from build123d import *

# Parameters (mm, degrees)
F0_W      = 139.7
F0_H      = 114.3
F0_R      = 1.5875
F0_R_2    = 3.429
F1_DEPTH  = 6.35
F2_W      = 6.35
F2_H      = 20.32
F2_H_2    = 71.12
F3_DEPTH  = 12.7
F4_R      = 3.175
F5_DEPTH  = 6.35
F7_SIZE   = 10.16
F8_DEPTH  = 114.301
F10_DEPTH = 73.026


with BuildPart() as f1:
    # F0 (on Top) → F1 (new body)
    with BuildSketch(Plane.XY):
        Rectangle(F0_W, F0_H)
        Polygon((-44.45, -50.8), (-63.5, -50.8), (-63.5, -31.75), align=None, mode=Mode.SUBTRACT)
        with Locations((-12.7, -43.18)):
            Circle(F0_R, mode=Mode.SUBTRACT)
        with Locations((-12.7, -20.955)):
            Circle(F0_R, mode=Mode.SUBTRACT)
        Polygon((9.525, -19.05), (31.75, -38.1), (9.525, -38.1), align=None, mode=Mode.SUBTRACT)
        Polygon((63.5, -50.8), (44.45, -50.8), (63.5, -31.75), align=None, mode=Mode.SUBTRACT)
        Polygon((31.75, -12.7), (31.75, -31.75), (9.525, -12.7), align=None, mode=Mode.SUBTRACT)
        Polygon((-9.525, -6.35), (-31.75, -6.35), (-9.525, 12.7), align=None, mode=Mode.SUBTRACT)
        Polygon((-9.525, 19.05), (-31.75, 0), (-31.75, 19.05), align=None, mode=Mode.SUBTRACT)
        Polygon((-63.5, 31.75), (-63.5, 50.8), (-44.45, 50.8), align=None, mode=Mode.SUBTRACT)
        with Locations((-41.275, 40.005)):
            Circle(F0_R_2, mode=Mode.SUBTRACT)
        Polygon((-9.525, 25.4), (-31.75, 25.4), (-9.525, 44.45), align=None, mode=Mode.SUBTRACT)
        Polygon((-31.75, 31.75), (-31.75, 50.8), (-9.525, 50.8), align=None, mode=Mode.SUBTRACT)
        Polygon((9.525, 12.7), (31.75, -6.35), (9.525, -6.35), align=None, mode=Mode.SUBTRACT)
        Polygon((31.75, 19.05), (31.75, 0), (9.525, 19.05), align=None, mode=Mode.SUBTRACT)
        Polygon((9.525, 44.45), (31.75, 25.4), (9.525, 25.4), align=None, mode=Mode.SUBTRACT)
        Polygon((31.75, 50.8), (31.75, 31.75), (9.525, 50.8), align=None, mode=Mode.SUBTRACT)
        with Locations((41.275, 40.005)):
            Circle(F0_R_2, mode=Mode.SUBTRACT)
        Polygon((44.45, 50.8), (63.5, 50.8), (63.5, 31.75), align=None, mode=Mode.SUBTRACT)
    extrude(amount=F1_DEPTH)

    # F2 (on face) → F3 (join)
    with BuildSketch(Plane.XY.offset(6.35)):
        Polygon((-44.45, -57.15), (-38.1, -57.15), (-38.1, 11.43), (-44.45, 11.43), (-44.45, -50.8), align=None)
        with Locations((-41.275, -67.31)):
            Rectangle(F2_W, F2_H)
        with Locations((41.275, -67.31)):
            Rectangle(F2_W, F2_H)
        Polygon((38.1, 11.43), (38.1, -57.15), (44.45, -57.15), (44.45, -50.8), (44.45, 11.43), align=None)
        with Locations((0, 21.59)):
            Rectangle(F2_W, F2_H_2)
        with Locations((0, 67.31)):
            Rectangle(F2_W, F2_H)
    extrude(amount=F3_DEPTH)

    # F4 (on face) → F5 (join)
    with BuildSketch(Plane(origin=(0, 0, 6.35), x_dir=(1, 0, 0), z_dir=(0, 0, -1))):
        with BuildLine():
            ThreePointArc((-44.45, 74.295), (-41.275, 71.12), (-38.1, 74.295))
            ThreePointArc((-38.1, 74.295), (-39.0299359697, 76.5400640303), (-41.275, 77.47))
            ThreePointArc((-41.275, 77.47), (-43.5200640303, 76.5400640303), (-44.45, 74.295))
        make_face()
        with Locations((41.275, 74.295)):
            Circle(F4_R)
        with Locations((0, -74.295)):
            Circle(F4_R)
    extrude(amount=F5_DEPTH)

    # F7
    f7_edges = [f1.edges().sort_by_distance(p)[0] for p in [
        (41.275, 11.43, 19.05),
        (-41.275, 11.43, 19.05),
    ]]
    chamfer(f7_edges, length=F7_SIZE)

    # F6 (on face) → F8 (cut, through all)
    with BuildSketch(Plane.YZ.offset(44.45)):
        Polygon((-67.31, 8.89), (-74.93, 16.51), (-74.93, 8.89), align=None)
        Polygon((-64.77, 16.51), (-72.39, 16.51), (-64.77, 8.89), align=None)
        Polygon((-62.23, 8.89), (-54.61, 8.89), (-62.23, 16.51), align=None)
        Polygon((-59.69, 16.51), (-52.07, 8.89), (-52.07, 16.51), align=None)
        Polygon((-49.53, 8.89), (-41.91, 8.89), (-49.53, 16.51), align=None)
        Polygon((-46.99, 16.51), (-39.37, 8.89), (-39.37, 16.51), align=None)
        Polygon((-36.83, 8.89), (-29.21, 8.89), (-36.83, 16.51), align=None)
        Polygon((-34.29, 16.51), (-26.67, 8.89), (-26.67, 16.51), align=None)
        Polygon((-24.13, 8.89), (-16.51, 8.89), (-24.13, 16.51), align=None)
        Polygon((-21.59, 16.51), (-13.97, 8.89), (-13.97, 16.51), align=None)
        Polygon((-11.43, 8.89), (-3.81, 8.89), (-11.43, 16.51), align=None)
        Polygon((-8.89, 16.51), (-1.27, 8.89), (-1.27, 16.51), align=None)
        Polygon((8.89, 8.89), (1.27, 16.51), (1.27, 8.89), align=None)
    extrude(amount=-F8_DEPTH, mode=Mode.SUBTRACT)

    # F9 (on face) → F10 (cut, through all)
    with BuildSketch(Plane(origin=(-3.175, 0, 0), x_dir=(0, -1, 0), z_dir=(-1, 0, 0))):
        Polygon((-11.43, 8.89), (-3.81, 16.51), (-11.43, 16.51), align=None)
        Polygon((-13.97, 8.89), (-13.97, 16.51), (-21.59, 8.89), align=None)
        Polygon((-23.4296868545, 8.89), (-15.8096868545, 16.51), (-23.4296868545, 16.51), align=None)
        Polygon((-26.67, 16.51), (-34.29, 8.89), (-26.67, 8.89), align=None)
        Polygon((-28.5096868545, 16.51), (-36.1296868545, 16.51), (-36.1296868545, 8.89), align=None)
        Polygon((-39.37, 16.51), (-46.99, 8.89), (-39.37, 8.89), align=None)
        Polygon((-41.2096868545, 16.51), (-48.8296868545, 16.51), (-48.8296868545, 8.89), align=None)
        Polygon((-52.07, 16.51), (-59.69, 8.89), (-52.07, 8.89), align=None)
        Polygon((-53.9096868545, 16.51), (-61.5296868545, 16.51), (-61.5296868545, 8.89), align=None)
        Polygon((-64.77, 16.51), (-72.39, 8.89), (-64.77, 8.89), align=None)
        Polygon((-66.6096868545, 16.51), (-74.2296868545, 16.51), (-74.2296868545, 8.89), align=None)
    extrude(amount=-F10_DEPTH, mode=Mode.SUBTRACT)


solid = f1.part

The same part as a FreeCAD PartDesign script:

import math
import FreeCAD as App
import Part
import Sketcher
Q = App.Units.Quantity


def edges_at(feature, points):
    """Names of the edges that pass closest to the given points."""
    edges = feature.Shape.Edges
    near = lambda p: min(range(len(edges)), key=lambda i: edges[i].distToShape(Part.Vertex(*p))[0])
    return sorted({f"Edge{near(p) + 1}" for p in points})


def add_polygon(sketch, points):
    """Adds a closed chain of lines whose ends are joined by coincident constraints."""
    first, n = sketch.GeometryCount, len(points)
    for a, b in zip(points, points[1:] + points[:1]):
        sketch.addGeometry(Part.LineSegment(App.Vector(*a, 0), App.Vector(*b, 0)), False)
    for i in range(n):
        sketch.addConstraint(Sketcher.Constraint("Coincident", first + i, 2, first + (i + 1) % n, 1))

doc = App.newDocument("Part")
body = doc.addObject("PartDesign::Body", "Body")

# Sketch on XY plane
sketch1 = body.newObject("Sketcher::SketchObject", "Sketch")
sketch1.AttachmentSupport = (doc.getObject("XY_Plane"), [""])
sketch1.MapMode = "FlatFace"
add_polygon(sketch1, [(-69.8, 57.1), (-69.8, -57.1), (69.8, -57.1), (69.8, 57.1)])  # lines 0-3
add_polygon(sketch1, [(-63.5, -31.8), (-44.5, -50.8), (-63.5, -50.8)])  # lines 4-6
sketch1.addGeometry(Part.Circle(App.Vector(-12.7, -43.2, 0), App.Vector(0, 0, 1), 1.6), False)  # 7
sketch1.addGeometry(Part.Circle(App.Vector(-12.7, -21, 0), App.Vector(0, 0, 1), 1.6), False)  # 8
add_polygon(sketch1, [(9.5, -38.1), (9.5, -19.1), (31.8, -38.1)])  # lines 9-11
add_polygon(sketch1, [(63.5, -31.8), (63.5, -50.8), (44.5, -50.8)])  # lines 12-14
add_polygon(sketch1, [(9.5, -12.7), (31.8, -12.7), (31.8, -31.8)])  # lines 15-17
add_polygon(sketch1, [(-9.5, 12.7), (-9.5, -6.3), (-31.8, -6.3)])  # lines 18-20
add_polygon(sketch1, [(-31.8, 19.1), (-9.5, 19.1), (-31.8, 0)])  # lines 21-23
add_polygon(sketch1, [(-44.5, 50.8), (-63.5, 31.8), (-63.5, 50.8)])  # lines 24-26
sketch1.addGeometry(Part.Circle(App.Vector(-41.3, 40, 0), App.Vector(0, 0, 1), 3.4), False)  # 27
add_polygon(sketch1, [(-9.5, 44.5), (-9.5, 25.4), (-31.8, 25.4)])  # lines 28-30
add_polygon(sketch1, [(-9.5, 50.8), (-31.8, 31.8), (-31.8, 50.8)])  # lines 31-33
add_polygon(sketch1, [(9.5, -6.3), (9.5, 12.7), (31.8, -6.3)])  # lines 34-36
add_polygon(sketch1, [(9.5, 19.1), (31.8, 19.1), (31.8, 0)])  # lines 37-39
add_polygon(sketch1, [(9.5, 25.4), (9.5, 44.5), (31.8, 25.4)])  # lines 40-42
add_polygon(sketch1, [(9.5, 50.8), (31.8, 50.8), (31.8, 31.8)])  # lines 43-45
sketch1.addGeometry(Part.Circle(App.Vector(41.3, 40, 0), App.Vector(0, 0, 1), 3.4), False)  # 46
add_polygon(sketch1, [(63.5, 31.8), (44.5, 50.8), (63.5, 50.8)])  # lines 47-49
sketch1.addConstraint(Sketcher.Constraint("Vertical", 0))
sketch1.addConstraint(Sketcher.Constraint("Horizontal", 1))
sketch1.addConstraint(Sketcher.Constraint("Vertical", 2))
sketch1.addConstraint(Sketcher.Constraint("Horizontal", 3))
sketch1.addConstraint(Sketcher.Constraint("Horizontal", 5))
sketch1.addConstraint(Sketcher.Constraint("Vertical", 6))
sketch1.addConstraint(Sketcher.Constraint("Vertical", 9))
sketch1.addConstraint(Sketcher.Constraint("Horizontal", 11))
sketch1.addConstraint(Sketcher.Constraint("Vertical", 12))
sketch1.addConstraint(Sketcher.Constraint("Horizontal", 13))
sketch1.addConstraint(Sketcher.Constraint("Horizontal", 15))
sketch1.addConstraint(Sketcher.Constraint("Vertical", 16))
sketch1.addConstraint(Sketcher.Constraint("Vertical", 18))
sketch1.addConstraint(Sketcher.Constraint("Horizontal", 19))
sketch1.addConstraint(Sketcher.Constraint("Horizontal", 21))
sketch1.addConstraint(Sketcher.Constraint("Vertical", 23))
sketch1.addConstraint(Sketcher.Constraint("Vertical", 25))
sketch1.addConstraint(Sketcher.Constraint("Horizontal", 26))
sketch1.addConstraint(Sketcher.Constraint("Vertical", 28))
sketch1.addConstraint(Sketcher.Constraint("Horizontal", 29))
sketch1.addConstraint(Sketcher.Constraint("Vertical", 32))
sketch1.addConstraint(Sketcher.Constraint("Horizontal", 33))
sketch1.addConstraint(Sketcher.Constraint("Vertical", 34))
sketch1.addConstraint(Sketcher.Constraint("Horizontal", 36))
sketch1.addConstraint(Sketcher.Constraint("Horizontal", 37))
sketch1.addConstraint(Sketcher.Constraint("Vertical", 38))
sketch1.addConstraint(Sketcher.Constraint("Vertical", 40))
sketch1.addConstraint(Sketcher.Constraint("Horizontal", 42))
sketch1.addConstraint(Sketcher.Constraint("Horizontal", 43))
sketch1.addConstraint(Sketcher.Constraint("Vertical", 44))
sketch1.addConstraint(Sketcher.Constraint("Horizontal", 48))
sketch1.addConstraint(Sketcher.Constraint("Vertical", 49))
sketch1.addConstraint(Sketcher.Constraint("Equal", 7, 8))
sketch1.addConstraint(Sketcher.Constraint("Equal", 27, 46))
sketch1.addConstraint(Sketcher.Constraint("Symmetric", 0, 2, 2, 2, -1, 1))
sketch1.addConstraint(Sketcher.Constraint("Symmetric", 17, 2, 20, 2, -1, 1))
sketch1.addConstraint(Sketcher.Constraint("Symmetric", 9, 2, 21, 2, -1, 1))
sketch1.addConstraint(Sketcher.Constraint("Symmetric", 14, 2, 24, 2, -1, 1))
sketch1.addConstraint(Sketcher.Constraint("Symmetric", 13, 2, 26, 2, -1, 1))
sketch1.addConstraint(Sketcher.Constraint("Symmetric", 16, 2, 31, 2, -1, 1))
sketch1.addConstraint(Sketcher.Constraint("Symmetric", 22, 2, 38, 2, -1, 1))
sketch1.addConstraint(Sketcher.Constraint("Symmetric", 4, 2, 47, 2, -1, 1))
sketch1.addConstraint(Sketcher.Constraint("Symmetric", 6, 2, 49, 2, -1, 1))
sketch1.addConstraint(Sketcher.Constraint("Symmetric", 27, 3, 46, 3, -2))
sketch1.addConstraint(Sketcher.Constraint("Symmetric", 5, 2, 12, 2, -2))
sketch1.addConstraint(Sketcher.Constraint("Symmetric", 20, 2, 34, 2, -2))
sketch1.addConstraint(Sketcher.Constraint("Symmetric", 19, 2, 35, 2, -2))
sketch1.addConstraint(Sketcher.Constraint("Symmetric", 21, 2, 39, 2, -2))
sketch1.addConstraint(Sketcher.Constraint("Symmetric", 30, 2, 40, 2, -2))
sketch1.addConstraint(Sketcher.Constraint("Symmetric", 29, 2, 41, 2, -2))
sketch1.addConstraint(Sketcher.Constraint("Symmetric", 32, 2, 43, 2, -2))
sketch1.addConstraint(Sketcher.Constraint("PointOnObject", 22, 2, -1))
sketch1.addConstraint(Sketcher.Constraint("Perpendicular", 4, 14))
sketch1.addConstraint(Sketcher.Constraint("Parallel", 10, 17))
sketch1.addConstraint(Sketcher.Constraint("Parallel", 20, 22))
sketch1.addConstraint(Sketcher.Constraint("Parallel", 22, 30))
sketch1.addConstraint(Sketcher.Constraint("Parallel", 30, 31))
sketch1.addConstraint(Sketcher.Constraint("Parallel", 17, 35))
sketch1.addConstraint(Sketcher.Constraint("Parallel", 41, 45))
sketch1.addConstraint(Sketcher.Constraint("Horizontal", 6, 2, 14, 2))
sketch1.addConstraint(Sketcher.Constraint("Horizontal", 14, 2, 16, 2))
sketch1.addConstraint(Sketcher.Constraint("Horizontal", 26, 2, 32, 2))
sketch1.addConstraint(Sketcher.Constraint("Horizontal", 31, 2, 44, 2))
sketch1.addConstraint(Sketcher.Constraint("Vertical", 7, 3, 8, 3))
sketch1.addConstraint(Sketcher.Constraint("Vertical", 10, 2, 15, 2))
sketch1.addConstraint(Sketcher.Constraint("Vertical", 11, 2, 17, 2))
sketch1.addConstraint(Sketcher.Constraint("Vertical", 19, 2, 22, 2))
sketch1.addConstraint(Sketcher.Constraint("Vertical", 4, 2, 26, 2))
sketch1.addConstraint(Sketcher.Constraint("Vertical", 21, 2, 28, 2))
sketch1.addConstraint(Sketcher.Constraint("Vertical", 23, 2, 29, 2))
sketch1.addConstraint(Sketcher.Constraint("Vertical", 29, 2, 31, 2))
sketch1.addConstraint(Sketcher.Constraint("Vertical", 30, 2, 33, 2))
sketch1.addConstraint(Sketcher.Constraint("Diameter", 27, Q("0.27 in")))
sketch1.addConstraint(Sketcher.Constraint("Diameter", 7, Q("0.125 in")))
sketch1.addConstraint(Sketcher.Constraint("DistanceX", 1, 1, 1, 2, Q("5.5 in")))
sketch1.addConstraint(Sketcher.Constraint("DistanceY", 0, 2, 0, 1, Q("4.5 in")))
sketch1.addConstraint(Sketcher.Constraint("DistanceY", 4, 2, -1, 1, Q("2 in")))
sketch1.addConstraint(Sketcher.Constraint("DistanceY", -1, 1, 28, 2, Q("1 in")))
sketch1.addConstraint(Sketcher.Constraint("DistanceX", 0, 2, 4, 2, Q("1 in")))
sketch1.addConstraint(Sketcher.Constraint("DistanceX", 5, 2, 7, 3, Q("2 in")))
sketch1.addConstraint(Sketcher.Constraint("DistanceY", 0, 2, 6, 2, Q("1 in")))
sketch1.addConstraint(Sketcher.Constraint("DistanceX", 4, 2, 10, 2, Q("3 in")))
sketch1.addConstraint(Sketcher.Constraint("DistanceY", 7, 3, -1, 1, Q("1.7 in")))
sketch1.addConstraint(Sketcher.Constraint("DistanceY", 8, 3, 27, 3, Q("2.4 in")))
sketch1.addConstraint(Sketcher.Constraint("DistanceX", 11, 2, 11, 1, Q("0.875 in")))
sketch1.addConstraint(Sketcher.Constraint("DistanceX", 27, 3, 46, 3, Q("3.25 in")))
sketch1.addConstraint(Sketcher.Constraint("DistanceY", 8, 3, -1, 1, Q("0.825 in")))
pad1 = body.newObject("PartDesign::Pad", "Pad")
pad1.Profile = sketch1
pad1.Length = Q("0.25 in")

# Sketch on XY plane
sketch2 = body.newObject("Sketcher::SketchObject", "Sketch001")
sketch2.AttachmentSupport = (doc.getObject("XY_Plane"), [""])
sketch2.MapMode = "FlatFace"
sketch2.AttachmentOffset = App.Placement(App.Vector(0, 0, 0.25 * 25.4), App.Rotation())
add_polygon(sketch2, [(-38, 11), (-44, 11), (-44, -77), (-38, -77)])  # lines 0-3
add_polygon(sketch2, [(38, -77), (44, -77), (44, 11), (38, 11)])  # lines 4-7
add_polygon(sketch2, [(-3, -14), (3, -14), (3, 77), (-3, 77)])  # lines 8-11
sketch2.addConstraint(Sketcher.Constraint("Horizontal", 0))
sketch2.addConstraint(Sketcher.Constraint("Vertical", 1))
sketch2.addConstraint(Sketcher.Constraint("Horizontal", 2))
sketch2.addConstraint(Sketcher.Constraint("Vertical", 3))
sketch2.addConstraint(Sketcher.Constraint("Horizontal", 4))
sketch2.addConstraint(Sketcher.Constraint("Vertical", 5))
sketch2.addConstraint(Sketcher.Constraint("Horizontal", 6))
sketch2.addConstraint(Sketcher.Constraint("Vertical", 7))
sketch2.addConstraint(Sketcher.Constraint("Horizontal", 8))
sketch2.addConstraint(Sketcher.Constraint("Vertical", 9))
sketch2.addConstraint(Sketcher.Constraint("Horizontal", 10))
sketch2.addConstraint(Sketcher.Constraint("Vertical", 11))
sketch2.addConstraint(Sketcher.Constraint("Symmetric", 1, 2, 4, 2, -2))
sketch2.addConstraint(Sketcher.Constraint("Symmetric", 3, 2, 6, 2, -2))
sketch2.addConstraint(Sketcher.Constraint("Equal", 6, 8))
sketch2.addConstraint(Sketcher.Constraint("DistanceY", 1, 2, 1, 1, Q("3.5 in")))
sketch2.addConstraint(Sketcher.Constraint("DistanceY", 9, 1, 9, 2, Q("3.6 in")))
sketch2.addConstraint(Sketcher.Constraint("DistanceX", 3, 2, 6, 2, Q("3 in")))
sketch2.addConstraint(Sketcher.Constraint("DistanceY", 8, 2, 6, 2, Q("1 in")))
sketch2.addConstraint(Sketcher.Constraint("DistanceX", 0, 2, 0, 1, Q("0.25 in")))
sketch2.addConstraint(Sketcher.Constraint("DistanceY", -1, 1, 0, 2, Q("0.45 in")))
sketch2.addConstraint(Sketcher.Constraint("DistanceX", -1, 1, 8, 2, Q("0.125 in")))
pad2 = body.newObject("PartDesign::Pad", "Pad001")
pad2.Profile = sketch2
pad2.Length = Q("0.5 in")

# Sketch on XY plane
sketch3 = body.newObject("Sketcher::SketchObject", "Sketch002")
sketch3.AttachmentSupport = (doc.getObject("XY_Plane"), [""])
sketch3.MapMode = "FlatFace"
sketch3.AttachmentOffset = App.Placement(App.Vector(0, 0, 0.25 * 25.4), App.Rotation())
sketch3.addGeometry(Part.ArcOfCircle(Part.Circle(App.Vector(-41.3, -74.3, 0), App.Vector(0, 0, 1), 3.2), math.radians(0), math.radians(180)), False)
sketch3.addGeometry(Part.ArcOfCircle(Part.Circle(App.Vector(-41.3, -74.3, 0), App.Vector(0, 0, 1), 3.2), math.radians(-90), math.radians(0)), False)
sketch3.addGeometry(Part.ArcOfCircle(Part.Circle(App.Vector(-41.3, -74.3, 0), App.Vector(0, 0, 1), 3.2), math.radians(180), math.radians(270)), False)
sketch3.addGeometry(Part.Circle(App.Vector(41.3, -74.3, 0), App.Vector(0, 0, 1), 3.2), False)
sketch3.addGeometry(Part.Circle(App.Vector(0, 74.3, 0), App.Vector(0, 0, 1), 3.2), False)
sketch3.addConstraint(Sketcher.Constraint("Tangent", 0, 1, 1, 2))
sketch3.addConstraint(Sketcher.Constraint("Tangent", 1, 1, 2, 2))
sketch3.addConstraint(Sketcher.Constraint("Tangent", 2, 1, 0, 2))
sketch3.addConstraint(Sketcher.Constraint("Equal", 2, 3))
sketch3.addConstraint(Sketcher.Constraint("Equal", 3, 4))
sketch3.addConstraint(Sketcher.Constraint("Symmetric", 0, 3, 3, 3, -2))
sketch3.addConstraint(Sketcher.Constraint("PointOnObject", 4, 3, -2))
sketch3.addConstraint(Sketcher.Constraint("Horizontal", 3, 3, 0, 1))
sketch3.addConstraint(Sketcher.Constraint("Horizontal", 0, 1, 2, 1))
sketch3.addConstraint(Sketcher.Constraint("Vertical", 2, 3, 1, 1))
sketch3.addConstraint(Sketcher.Constraint("Diameter", 3, Q("0.25 in")))
sketch3.addConstraint(Sketcher.Constraint("DistanceX", 0, 1, -1, 1, Q("1.5 in")))
sketch3.addConstraint(Sketcher.Constraint("DistanceY", 1, 1, -1, 1, Q("3.05 in")))
sketch3.addConstraint(Sketcher.Constraint("DistanceY", 0, 3, 4, 3, Q("5.85 in")))
pad3 = body.newObject("PartDesign::Pad", "Pad002")
pad3.Profile = sketch3
pad3.Length = Q("0.25 in")
pad3.Reversed = True
doc.recompute()

chamfer = body.newObject("PartDesign::Chamfer", "Chamfer")
chamfer.Base = (pad3, edges_at(pad3, [(41.275, 11.43, 19.05), (-41.275, 11.43, 19.05)]))
chamfer.Size = Q("0.4 in")

# Sketch on YZ plane
sketch4 = body.newObject("Sketcher::SketchObject", "Sketch003")
sketch4.AttachmentSupport = (doc.getObject("YZ_Plane"), [""])
sketch4.MapMode = "FlatFace"
sketch4.AttachmentOffset = App.Placement(App.Vector(0, 0, 1.75 * 25.4), App.Rotation())
add_polygon(sketch4, [(-67, 9), (-75, 17), (-75, 9)])  # lines 0-2
add_polygon(sketch4, [(-65, 17), (-72, 17), (-65, 9)])  # lines 3-5
add_polygon(sketch4, [(-62, 9), (-55, 9), (-62, 17)])  # lines 6-8
add_polygon(sketch4, [(-60, 17), (-52, 9), (-52, 17)])  # lines 9-11
add_polygon(sketch4, [(-50, 9), (-42, 9), (-50, 17)])  # lines 12-14
add_polygon(sketch4, [(-47, 17), (-39, 9), (-39, 17)])  # lines 15-17
add_polygon(sketch4, [(-37, 9), (-29, 9), (-37, 17)])  # lines 18-20
add_polygon(sketch4, [(-34, 17), (-27, 9), (-27, 17)])  # lines 21-23
add_polygon(sketch4, [(-24, 9), (-17, 9), (-24, 17)])  # lines 24-26
add_polygon(sketch4, [(-22, 17), (-14, 9), (-14, 17)])  # lines 27-29
add_polygon(sketch4, [(-11, 9), (-4, 9), (-11, 17)])  # lines 30-32
add_polygon(sketch4, [(-9, 17), (-1, 9), (-1, 17)])  # lines 33-35
add_polygon(sketch4, [(9, 9), (1, 17), (1, 9)])  # lines 36-38
sketch4.addConstraint(Sketcher.Constraint("Vertical", 1))
sketch4.addConstraint(Sketcher.Constraint("Horizontal", 2))
sketch4.addConstraint(Sketcher.Constraint("Horizontal", 3))
sketch4.addConstraint(Sketcher.Constraint("Vertical", 5))
sketch4.addConstraint(Sketcher.Constraint("Horizontal", 6))
sketch4.addConstraint(Sketcher.Constraint("Vertical", 8))
sketch4.addConstraint(Sketcher.Constraint("Vertical", 10))
sketch4.addConstraint(Sketcher.Constraint("Horizontal", 11))
sketch4.addConstraint(Sketcher.Constraint("Horizontal", 12))
sketch4.addConstraint(Sketcher.Constraint("Vertical", 14))
sketch4.addConstraint(Sketcher.Constraint("Vertical", 16))
sketch4.addConstraint(Sketcher.Constraint("Horizontal", 17))
sketch4.addConstraint(Sketcher.Constraint("Horizontal", 18))
sketch4.addConstraint(Sketcher.Constraint("Vertical", 20))
sketch4.addConstraint(Sketcher.Constraint("Vertical", 22))
sketch4.addConstraint(Sketcher.Constraint("Horizontal", 23))
sketch4.addConstraint(Sketcher.Constraint("Horizontal", 24))
sketch4.addConstraint(Sketcher.Constraint("Vertical", 26))
sketch4.addConstraint(Sketcher.Constraint("Vertical", 28))
sketch4.addConstraint(Sketcher.Constraint("Horizontal", 29))
sketch4.addConstraint(Sketcher.Constraint("Horizontal", 30))
sketch4.addConstraint(Sketcher.Constraint("Vertical", 32))
sketch4.addConstraint(Sketcher.Constraint("Vertical", 34))
sketch4.addConstraint(Sketcher.Constraint("Horizontal", 35))
sketch4.addConstraint(Sketcher.Constraint("Vertical", 37))
sketch4.addConstraint(Sketcher.Constraint("Horizontal", 38))
sketch4.addConstraint(Sketcher.Constraint("Symmetric", 34, 2, 36, 2, -2))
sketch4.addConstraint(Sketcher.Constraint("Parallel", 0, 4))
sketch4.addConstraint(Sketcher.Constraint("Parallel", 4, 7))
sketch4.addConstraint(Sketcher.Constraint("Parallel", 7, 9))
sketch4.addConstraint(Sketcher.Constraint("Parallel", 9, 13))
sketch4.addConstraint(Sketcher.Constraint("Parallel", 13, 15))
sketch4.addConstraint(Sketcher.Constraint("Parallel", 15, 19))
sketch4.addConstraint(Sketcher.Constraint("Parallel", 19, 21))
sketch4.addConstraint(Sketcher.Constraint("Parallel", 21, 25))
sketch4.addConstraint(Sketcher.Constraint("Parallel", 25, 27))
sketch4.addConstraint(Sketcher.Constraint("Parallel", 27, 31))
sketch4.addConstraint(Sketcher.Constraint("Parallel", 31, 33))
sketch4.addConstraint(Sketcher.Constraint("Parallel", 33, 36))
sketch4.addConstraint(Sketcher.Constraint("Horizontal", 0, 2, 3, 2))
sketch4.addConstraint(Sketcher.Constraint("Horizontal", 2, 2, 4, 2))
sketch4.addConstraint(Sketcher.Constraint("Horizontal", 4, 2, 6, 2))
sketch4.addConstraint(Sketcher.Constraint("Horizontal", 5, 2, 7, 2))
sketch4.addConstraint(Sketcher.Constraint("Horizontal", 8, 2, 9, 2))
sketch4.addConstraint(Sketcher.Constraint("Horizontal", 7, 2, 10, 2))
sketch4.addConstraint(Sketcher.Constraint("Horizontal", 9, 2, 12, 2))
sketch4.addConstraint(Sketcher.Constraint("Horizontal", 11, 2, 13, 2))
sketch4.addConstraint(Sketcher.Constraint("Horizontal", 14, 2, 15, 2))
sketch4.addConstraint(Sketcher.Constraint("Horizontal", 13, 2, 16, 2))
sketch4.addConstraint(Sketcher.Constraint("Horizontal", 15, 2, 18, 2))
sketch4.addConstraint(Sketcher.Constraint("Horizontal", 17, 2, 19, 2))
sketch4.addConstraint(Sketcher.Constraint("Horizontal", 20, 2, 21, 2))
sketch4.addConstraint(Sketcher.Constraint("Horizontal", 19, 2, 22, 2))
sketch4.addConstraint(Sketcher.Constraint("Horizontal", 21, 2, 24, 2))
sketch4.addConstraint(Sketcher.Constraint("Horizontal", 23, 2, 25, 2))
sketch4.addConstraint(Sketcher.Constraint("Horizontal", 26, 2, 27, 2))
sketch4.addConstraint(Sketcher.Constraint("Horizontal", 25, 2, 28, 2))
sketch4.addConstraint(Sketcher.Constraint("Horizontal", 27, 2, 30, 2))
sketch4.addConstraint(Sketcher.Constraint("Horizontal", 29, 2, 31, 2))
sketch4.addConstraint(Sketcher.Constraint("Horizontal", 32, 2, 33, 2))
sketch4.addConstraint(Sketcher.Constraint("Horizontal", 31, 2, 34, 2))
sketch4.addConstraint(Sketcher.Constraint("Horizontal", 33, 2, 37, 2))
sketch4.addConstraint(Sketcher.Constraint("Equal", 38, 1))
sketch4.addConstraint(Sketcher.Constraint("DistanceX", 2, 1, 2, 2, Q("0.3 in")))
sketch4.addConstraint(Sketcher.Constraint("DistanceX", 0, 2, 3, 2, Q("0.1 in")))
sketch4.addConstraint(Sketcher.Constraint("DistanceX", 4, 2, 6, 2, Q("0.4 in")))
sketch4.addConstraint(Sketcher.Constraint("DistanceX", 6, 2, 9, 2, Q("0.1 in")))
sketch4.addConstraint(Sketcher.Constraint("DistanceX", 9, 2, 12, 2, Q("0.4 in")))
sketch4.addConstraint(Sketcher.Constraint("DistanceX", 12, 2, 15, 2, Q("0.1 in")))
sketch4.addConstraint(Sketcher.Constraint("DistanceX", 15, 2, 18, 2, Q("0.4 in")))
sketch4.addConstraint(Sketcher.Constraint("DistanceX", 18, 2, 21, 2, Q("0.1 in")))
sketch4.addConstraint(Sketcher.Constraint("DistanceX", 21, 2, 24, 2, Q("0.4 in")))
sketch4.addConstraint(Sketcher.Constraint("DistanceX", 24, 2, 27, 2, Q("0.1 in")))
sketch4.addConstraint(Sketcher.Constraint("DistanceX", 27, 2, 30, 2, Q("0.4 in")))
sketch4.addConstraint(Sketcher.Constraint("DistanceX", 30, 2, 33, 2, Q("0.1 in")))
sketch4.addConstraint(Sketcher.Constraint("DistanceX", 34, 2, 36, 2, Q("0.1 in")))
sketch4.addConstraint(Sketcher.Constraint("DistanceY", -1, 1, 0, 2, Q("0.65 in")))
pocket1 = body.newObject("PartDesign::Pocket", "Pocket")
pocket1.Profile = sketch4
pocket1.Type = "ThroughAll"

# Sketch on YZ plane
sketch5 = body.newObject("Sketcher::SketchObject", "Sketch004")
sketch5.AttachmentSupport = (doc.getObject("YZ_Plane"), [""])
sketch5.MapMode = "FlatFace"
sketch5.AttachmentOffset = App.Placement(App.Vector(0, 0, -0.125 * 25.4), App.Rotation())
add_polygon(sketch5, [(11, 9), (4, 17), (11, 17)])  # lines 0-2
add_polygon(sketch5, [(14, 9), (14, 17), (22, 9)])  # lines 3-5
add_polygon(sketch5, [(23, 9), (16, 17), (23, 17)])  # lines 6-8
add_polygon(sketch5, [(27, 17), (34, 9), (27, 9)])  # lines 9-11
add_polygon(sketch5, [(29, 17), (36, 17), (36, 9)])  # lines 12-14
add_polygon(sketch5, [(39, 17), (47, 9), (39, 9)])  # lines 15-17
add_polygon(sketch5, [(41, 17), (49, 17), (49, 9)])  # lines 18-20
add_polygon(sketch5, [(52, 17), (60, 9), (52, 9)])  # lines 21-23
add_polygon(sketch5, [(54, 17), (62, 17), (62, 9)])  # lines 24-26
add_polygon(sketch5, [(65, 17), (72, 9), (65, 9)])  # lines 27-29
add_polygon(sketch5, [(67, 17), (74, 17), (74, 9)])  # lines 30-32
sketch5.addConstraint(Sketcher.Constraint("Horizontal", 1))
sketch5.addConstraint(Sketcher.Constraint("Vertical", 2))
sketch5.addConstraint(Sketcher.Constraint("Vertical", 3))
sketch5.addConstraint(Sketcher.Constraint("Horizontal", 5))
sketch5.addConstraint(Sketcher.Constraint("Horizontal", 7))
sketch5.addConstraint(Sketcher.Constraint("Vertical", 8))
sketch5.addConstraint(Sketcher.Constraint("Horizontal", 10))
sketch5.addConstraint(Sketcher.Constraint("Vertical", 11))
sketch5.addConstraint(Sketcher.Constraint("Horizontal", 12))
sketch5.addConstraint(Sketcher.Constraint("Vertical", 13))
sketch5.addConstraint(Sketcher.Constraint("Horizontal", 16))
sketch5.addConstraint(Sketcher.Constraint("Vertical", 17))
sketch5.addConstraint(Sketcher.Constraint("Horizontal", 18))
sketch5.addConstraint(Sketcher.Constraint("Vertical", 19))
sketch5.addConstraint(Sketcher.Constraint("Horizontal", 22))
sketch5.addConstraint(Sketcher.Constraint("Vertical", 23))
sketch5.addConstraint(Sketcher.Constraint("Horizontal", 24))
sketch5.addConstraint(Sketcher.Constraint("Vertical", 25))
sketch5.addConstraint(Sketcher.Constraint("Horizontal", 28))
sketch5.addConstraint(Sketcher.Constraint("Vertical", 29))
sketch5.addConstraint(Sketcher.Constraint("Horizontal", 30))
sketch5.addConstraint(Sketcher.Constraint("Vertical", 31))
sketch5.addConstraint(Sketcher.Constraint("Parallel", 0, 4))
sketch5.addConstraint(Sketcher.Constraint("Parallel", 4, 6))
sketch5.addConstraint(Sketcher.Constraint("Parallel", 6, 9))
sketch5.addConstraint(Sketcher.Constraint("Parallel", 9, 14))
sketch5.addConstraint(Sketcher.Constraint("Parallel", 14, 15))
sketch5.addConstraint(Sketcher.Constraint("Parallel", 15, 20))
sketch5.addConstraint(Sketcher.Constraint("Parallel", 20, 21))
sketch5.addConstraint(Sketcher.Constraint("Parallel", 21, 26))
sketch5.addConstraint(Sketcher.Constraint("Parallel", 26, 27))
sketch5.addConstraint(Sketcher.Constraint("Parallel", 27, 32))
sketch5.addConstraint(Sketcher.Constraint("Horizontal", 1, 2, 3, 2))
sketch5.addConstraint(Sketcher.Constraint("Horizontal", 2, 2, 4, 2))
sketch5.addConstraint(Sketcher.Constraint("Horizontal", 3, 2, 6, 2))
sketch5.addConstraint(Sketcher.Constraint("Horizontal", 5, 2, 8, 2))
sketch5.addConstraint(Sketcher.Constraint("Horizontal", 8, 2, 9, 2))
sketch5.addConstraint(Sketcher.Constraint("Horizontal", 7, 2, 11, 2))
sketch5.addConstraint(Sketcher.Constraint("Horizontal", 11, 2, 12, 2))
sketch5.addConstraint(Sketcher.Constraint("Horizontal", 10, 2, 13, 2))
sketch5.addConstraint(Sketcher.Constraint("Horizontal", 13, 2, 15, 2))
sketch5.addConstraint(Sketcher.Constraint("Horizontal", 14, 2, 17, 2))
sketch5.addConstraint(Sketcher.Constraint("Horizontal", 17, 2, 18, 2))
sketch5.addConstraint(Sketcher.Constraint("Horizontal", 16, 2, 19, 2))
sketch5.addConstraint(Sketcher.Constraint("Horizontal", 19, 2, 21, 2))
sketch5.addConstraint(Sketcher.Constraint("Horizontal", 20, 2, 23, 2))
sketch5.addConstraint(Sketcher.Constraint("Horizontal", 23, 2, 24, 2))
sketch5.addConstraint(Sketcher.Constraint("Horizontal", 22, 2, 25, 2))
sketch5.addConstraint(Sketcher.Constraint("Horizontal", 25, 2, 27, 2))
sketch5.addConstraint(Sketcher.Constraint("Horizontal", 26, 2, 29, 2))
sketch5.addConstraint(Sketcher.Constraint("Horizontal", 29, 2, 30, 2))
sketch5.addConstraint(Sketcher.Constraint("Horizontal", 28, 2, 31, 2))
sketch5.addConstraint(Sketcher.Constraint("Equal", 30, 2))
sketch5.addConstraint(Sketcher.Constraint("DistanceX", 1, 1, 1, 2, Q("0.3 in")))
sketch5.addConstraint(Sketcher.Constraint("DistanceX", 1, 2, 3, 2, Q("0.1 in")))
sketch5.addConstraint(Sketcher.Constraint("DistanceX", 4, 2, 9, 2, Q("0.5 in")))
sketch5.addConstraint(Sketcher.Constraint("DistanceX", 7, 2, 12, 2, Q("0.5 in")))
sketch5.addConstraint(Sketcher.Constraint("DistanceX", 9, 2, 15, 2, Q("0.5 in")))
sketch5.addConstraint(Sketcher.Constraint("DistanceX", 12, 2, 18, 2, Q("0.5 in")))
sketch5.addConstraint(Sketcher.Constraint("DistanceX", 15, 2, 21, 2, Q("0.5 in")))
sketch5.addConstraint(Sketcher.Constraint("DistanceX", 18, 2, 24, 2, Q("0.5 in")))
sketch5.addConstraint(Sketcher.Constraint("DistanceX", 21, 2, 27, 2, Q("0.5 in")))
sketch5.addConstraint(Sketcher.Constraint("DistanceX", 24, 2, 30, 2, Q("0.5 in")))
sketch5.addConstraint(Sketcher.Constraint("DistanceX", -1, 1, 0, 2, Q("0.15 in")))
sketch5.addConstraint(Sketcher.Constraint("DistanceY", -1, 1, 0, 2, Q("0.65 in")))
sketch5.addConstraint(Sketcher.Constraint("DistanceX", -1, 1, 6, 2, 15.809687))
pocket2 = body.newObject("PartDesign::Pocket", "Pocket001")
pocket2.Profile = sketch5
pocket2.Type = "ThroughAll"
pocket2.Reversed = True

doc.recompute()
